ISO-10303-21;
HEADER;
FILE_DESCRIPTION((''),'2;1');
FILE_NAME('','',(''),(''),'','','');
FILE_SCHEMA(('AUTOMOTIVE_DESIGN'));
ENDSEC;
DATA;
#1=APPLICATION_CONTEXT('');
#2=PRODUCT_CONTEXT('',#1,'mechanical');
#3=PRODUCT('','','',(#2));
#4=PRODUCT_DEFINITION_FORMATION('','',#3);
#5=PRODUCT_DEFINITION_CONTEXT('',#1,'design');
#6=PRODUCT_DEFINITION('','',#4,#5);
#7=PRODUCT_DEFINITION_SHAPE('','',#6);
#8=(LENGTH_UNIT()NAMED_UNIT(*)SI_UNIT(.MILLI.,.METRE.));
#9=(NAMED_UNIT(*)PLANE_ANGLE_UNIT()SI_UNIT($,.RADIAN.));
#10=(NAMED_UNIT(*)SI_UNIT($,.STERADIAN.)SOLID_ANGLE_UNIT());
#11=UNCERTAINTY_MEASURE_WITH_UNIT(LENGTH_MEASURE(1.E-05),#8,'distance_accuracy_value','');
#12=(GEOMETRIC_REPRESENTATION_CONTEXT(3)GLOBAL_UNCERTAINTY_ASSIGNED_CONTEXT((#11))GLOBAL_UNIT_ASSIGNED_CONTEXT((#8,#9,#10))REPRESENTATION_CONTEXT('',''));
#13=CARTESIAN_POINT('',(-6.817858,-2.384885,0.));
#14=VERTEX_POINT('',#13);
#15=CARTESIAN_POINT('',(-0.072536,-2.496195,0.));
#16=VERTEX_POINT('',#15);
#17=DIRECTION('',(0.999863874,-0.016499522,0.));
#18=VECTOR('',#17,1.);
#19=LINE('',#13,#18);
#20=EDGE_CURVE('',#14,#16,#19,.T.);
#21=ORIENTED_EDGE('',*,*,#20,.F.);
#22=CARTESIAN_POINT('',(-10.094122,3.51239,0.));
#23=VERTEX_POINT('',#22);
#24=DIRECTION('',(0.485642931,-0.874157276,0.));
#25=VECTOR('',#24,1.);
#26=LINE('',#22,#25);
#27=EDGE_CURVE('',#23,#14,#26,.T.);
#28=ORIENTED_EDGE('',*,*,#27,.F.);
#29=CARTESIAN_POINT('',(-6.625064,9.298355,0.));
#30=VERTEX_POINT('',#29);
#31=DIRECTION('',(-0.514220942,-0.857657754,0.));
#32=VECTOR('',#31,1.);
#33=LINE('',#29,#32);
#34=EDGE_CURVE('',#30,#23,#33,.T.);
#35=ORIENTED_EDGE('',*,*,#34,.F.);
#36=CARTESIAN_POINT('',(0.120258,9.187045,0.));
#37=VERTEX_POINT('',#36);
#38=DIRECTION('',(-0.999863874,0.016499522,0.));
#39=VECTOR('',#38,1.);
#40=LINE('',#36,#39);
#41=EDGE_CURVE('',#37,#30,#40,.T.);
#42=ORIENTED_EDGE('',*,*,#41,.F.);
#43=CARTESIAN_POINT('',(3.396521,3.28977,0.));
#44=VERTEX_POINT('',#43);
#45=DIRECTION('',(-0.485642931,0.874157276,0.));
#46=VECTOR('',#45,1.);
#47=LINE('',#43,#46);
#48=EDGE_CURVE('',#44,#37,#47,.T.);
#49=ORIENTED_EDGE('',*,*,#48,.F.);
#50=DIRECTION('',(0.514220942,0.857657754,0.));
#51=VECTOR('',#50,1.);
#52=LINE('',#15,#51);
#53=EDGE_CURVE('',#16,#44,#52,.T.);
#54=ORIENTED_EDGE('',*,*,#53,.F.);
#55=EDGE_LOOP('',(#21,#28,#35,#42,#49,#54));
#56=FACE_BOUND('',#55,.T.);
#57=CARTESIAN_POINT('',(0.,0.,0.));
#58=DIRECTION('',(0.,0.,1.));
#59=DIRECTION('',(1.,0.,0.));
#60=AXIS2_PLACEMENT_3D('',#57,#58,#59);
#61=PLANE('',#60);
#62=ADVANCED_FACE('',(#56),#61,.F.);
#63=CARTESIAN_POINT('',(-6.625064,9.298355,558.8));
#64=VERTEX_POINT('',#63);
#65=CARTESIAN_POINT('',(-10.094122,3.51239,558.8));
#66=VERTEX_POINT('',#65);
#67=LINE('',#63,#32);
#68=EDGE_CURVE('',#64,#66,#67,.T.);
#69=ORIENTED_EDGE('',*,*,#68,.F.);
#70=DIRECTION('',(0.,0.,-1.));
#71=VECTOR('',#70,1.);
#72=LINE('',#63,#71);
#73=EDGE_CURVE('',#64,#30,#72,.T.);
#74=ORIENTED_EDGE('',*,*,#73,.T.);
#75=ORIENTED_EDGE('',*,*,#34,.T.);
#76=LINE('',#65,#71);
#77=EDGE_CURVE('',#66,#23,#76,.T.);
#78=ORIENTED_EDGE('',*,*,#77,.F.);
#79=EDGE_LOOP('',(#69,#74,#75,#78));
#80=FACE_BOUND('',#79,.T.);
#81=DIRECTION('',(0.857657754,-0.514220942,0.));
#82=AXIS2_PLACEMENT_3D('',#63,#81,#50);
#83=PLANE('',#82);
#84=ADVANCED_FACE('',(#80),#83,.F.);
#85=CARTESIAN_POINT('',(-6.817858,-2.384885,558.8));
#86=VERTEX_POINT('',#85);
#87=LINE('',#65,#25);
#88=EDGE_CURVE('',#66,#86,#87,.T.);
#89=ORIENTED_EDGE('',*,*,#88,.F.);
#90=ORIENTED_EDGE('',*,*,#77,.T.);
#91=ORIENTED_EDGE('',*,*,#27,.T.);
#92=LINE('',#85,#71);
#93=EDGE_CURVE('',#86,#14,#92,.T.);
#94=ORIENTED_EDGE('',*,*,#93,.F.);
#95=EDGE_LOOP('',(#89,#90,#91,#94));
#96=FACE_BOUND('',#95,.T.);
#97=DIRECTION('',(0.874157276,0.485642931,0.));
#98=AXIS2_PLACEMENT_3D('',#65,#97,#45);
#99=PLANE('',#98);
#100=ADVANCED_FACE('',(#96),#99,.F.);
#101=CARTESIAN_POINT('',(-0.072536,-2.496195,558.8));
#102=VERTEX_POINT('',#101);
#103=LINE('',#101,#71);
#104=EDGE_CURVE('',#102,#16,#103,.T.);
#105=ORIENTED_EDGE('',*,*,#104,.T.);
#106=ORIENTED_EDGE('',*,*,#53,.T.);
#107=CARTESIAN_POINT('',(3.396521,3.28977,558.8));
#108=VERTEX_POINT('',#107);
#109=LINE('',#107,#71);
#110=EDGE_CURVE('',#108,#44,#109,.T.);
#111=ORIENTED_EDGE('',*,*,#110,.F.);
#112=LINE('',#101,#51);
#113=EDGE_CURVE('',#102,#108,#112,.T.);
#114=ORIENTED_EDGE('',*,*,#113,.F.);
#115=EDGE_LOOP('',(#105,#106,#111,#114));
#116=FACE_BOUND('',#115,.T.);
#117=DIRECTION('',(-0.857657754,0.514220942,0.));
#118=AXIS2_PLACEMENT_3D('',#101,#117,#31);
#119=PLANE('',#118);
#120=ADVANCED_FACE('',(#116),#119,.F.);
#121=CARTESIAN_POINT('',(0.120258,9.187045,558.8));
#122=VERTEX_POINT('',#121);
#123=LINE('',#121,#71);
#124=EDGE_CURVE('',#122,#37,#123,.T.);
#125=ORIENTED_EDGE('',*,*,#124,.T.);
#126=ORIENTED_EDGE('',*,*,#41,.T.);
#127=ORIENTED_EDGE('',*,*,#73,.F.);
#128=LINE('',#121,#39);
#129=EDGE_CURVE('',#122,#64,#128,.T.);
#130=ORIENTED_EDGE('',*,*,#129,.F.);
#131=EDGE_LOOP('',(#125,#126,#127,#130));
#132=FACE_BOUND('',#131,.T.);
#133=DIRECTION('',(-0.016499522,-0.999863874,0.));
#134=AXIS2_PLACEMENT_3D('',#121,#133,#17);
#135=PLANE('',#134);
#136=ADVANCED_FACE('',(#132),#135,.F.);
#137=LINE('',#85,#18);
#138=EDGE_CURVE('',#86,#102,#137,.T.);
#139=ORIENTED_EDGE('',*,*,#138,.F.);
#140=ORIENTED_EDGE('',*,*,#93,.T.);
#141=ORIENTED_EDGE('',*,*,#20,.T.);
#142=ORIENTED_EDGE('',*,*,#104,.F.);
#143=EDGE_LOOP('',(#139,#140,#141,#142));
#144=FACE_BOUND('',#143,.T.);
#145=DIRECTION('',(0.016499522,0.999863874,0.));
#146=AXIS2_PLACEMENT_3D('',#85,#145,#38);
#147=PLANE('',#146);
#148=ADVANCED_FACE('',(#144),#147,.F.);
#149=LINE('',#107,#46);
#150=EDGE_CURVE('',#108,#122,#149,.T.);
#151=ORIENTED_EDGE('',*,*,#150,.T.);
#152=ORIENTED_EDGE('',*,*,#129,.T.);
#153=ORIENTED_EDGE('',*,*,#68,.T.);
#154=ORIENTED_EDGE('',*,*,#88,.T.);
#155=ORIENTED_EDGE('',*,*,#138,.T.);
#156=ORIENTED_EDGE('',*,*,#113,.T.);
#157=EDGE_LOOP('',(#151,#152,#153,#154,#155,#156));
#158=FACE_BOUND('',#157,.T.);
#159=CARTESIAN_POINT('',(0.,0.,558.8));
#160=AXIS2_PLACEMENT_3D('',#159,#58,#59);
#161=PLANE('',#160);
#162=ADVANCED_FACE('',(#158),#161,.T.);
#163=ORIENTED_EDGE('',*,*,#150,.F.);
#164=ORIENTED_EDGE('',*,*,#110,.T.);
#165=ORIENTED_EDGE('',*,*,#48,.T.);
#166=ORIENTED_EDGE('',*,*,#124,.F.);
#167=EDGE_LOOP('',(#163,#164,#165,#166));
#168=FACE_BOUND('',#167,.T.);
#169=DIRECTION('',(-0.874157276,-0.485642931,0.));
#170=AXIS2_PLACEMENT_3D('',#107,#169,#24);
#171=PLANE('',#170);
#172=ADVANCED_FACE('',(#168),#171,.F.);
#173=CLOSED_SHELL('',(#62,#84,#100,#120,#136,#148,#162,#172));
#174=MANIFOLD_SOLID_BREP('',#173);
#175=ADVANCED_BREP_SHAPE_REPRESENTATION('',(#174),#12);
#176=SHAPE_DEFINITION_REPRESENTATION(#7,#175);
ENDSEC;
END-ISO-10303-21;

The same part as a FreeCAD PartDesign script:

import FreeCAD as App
import Part
import Sketcher
Q = App.Units.Quantity

doc = App.newDocument("Part")
body = doc.addObject("PartDesign::Body", "Body")

# Sketch on XY plane
sketch1 = body.newObject("Sketcher::SketchObject", "Sketch")
sketch1.AttachmentSupport = (doc.getObject("XY_Plane"), [""])
sketch1.MapMode = "FlatFace"
sketch1.addGeometry(Part.LineSegment(App.Vector(0, -2, 0), App.Vector(3, 3, 0)), False)
sketch1.addGeometry(Part.LineSegment(App.Vector(3, 3, 0), App.Vector(0, 9, 0)), False)
sketch1.addGeometry(Part.LineSegment(App.Vector(0, 9, 0), App.Vector(-7, 9, 0)), False)
sketch1.addGeometry(Part.LineSegment(App.Vector(-7, 9, 0), App.Vector(-10, 4, 0)), False)
sketch1.addGeometry(Part.LineSegment(App.Vector(-10, 4, 0), App.Vector(-7, -2, 0)), False)
sketch1.addGeometry(Part.LineSegment(App.Vector(-7, -2, 0), App.Vector(0, -2, 0)), False)
sketch1.addConstraint(Sketcher.Constraint("Coincident", 0, 2, 1, 1))
sketch1.addConstraint(Sketcher.Constraint("Coincident", 1, 2, 2, 1))
sketch1.addConstraint(Sketcher.Constraint("Coincident", 2, 2, 3, 1))
sketch1.addConstraint(Sketcher.Constraint("Coincident", 3, 2, 4, 1))
sketch1.addConstraint(Sketcher.Constraint("Coincident", 4, 2, 5, 1))
sketch1.addConstraint(Sketcher.Constraint("Coincident", 5, 2, 0, 1))
sketch1.addConstraint(Sketcher.Constraint("Parallel", 0, 3))
sketch1.addConstraint(Sketcher.Constraint("Parallel", 1, 4))
sketch1.addConstraint(Sketcher.Constraint("Parallel", 2, 5))
sketch1.addConstraint(Sketcher.Constraint("Equal", 0, 1))
sketch1.addConstraint(Sketcher.Constraint("Equal", 1, 2))
sketch1.addConstraint(Sketcher.Constraint("Equal", 2, 3))
sketch1.addConstraint(Sketcher.Constraint("Distance", 0, Q("0.2656 in")))
sketch1.addConstraint(Sketcher.Constraint("DistanceX", -1, 1, 0, 2, 3.396521))
sketch1.addConstraint(Sketcher.Constraint("DistanceY", -1, 1, 0, 2, 3.28977))
sketch1.addConstraint(Sketcher.Constraint("DistanceX", 3, 2, -1, 1, 10.094122))
sketch1.addConstraint(Sketcher.Constraint("DistanceY", -1, 1, 3, 2, 3.51239))
sketch1.addConstraint(Sketcher.Constraint("DistanceX", 4, 2, -1, 1, 6.817858))
pad1 = body.newObject("PartDesign::Pad", "Pad")
pad1.Profile = sketch1
pad1.Length = Q("22 in")

doc.recompute()
